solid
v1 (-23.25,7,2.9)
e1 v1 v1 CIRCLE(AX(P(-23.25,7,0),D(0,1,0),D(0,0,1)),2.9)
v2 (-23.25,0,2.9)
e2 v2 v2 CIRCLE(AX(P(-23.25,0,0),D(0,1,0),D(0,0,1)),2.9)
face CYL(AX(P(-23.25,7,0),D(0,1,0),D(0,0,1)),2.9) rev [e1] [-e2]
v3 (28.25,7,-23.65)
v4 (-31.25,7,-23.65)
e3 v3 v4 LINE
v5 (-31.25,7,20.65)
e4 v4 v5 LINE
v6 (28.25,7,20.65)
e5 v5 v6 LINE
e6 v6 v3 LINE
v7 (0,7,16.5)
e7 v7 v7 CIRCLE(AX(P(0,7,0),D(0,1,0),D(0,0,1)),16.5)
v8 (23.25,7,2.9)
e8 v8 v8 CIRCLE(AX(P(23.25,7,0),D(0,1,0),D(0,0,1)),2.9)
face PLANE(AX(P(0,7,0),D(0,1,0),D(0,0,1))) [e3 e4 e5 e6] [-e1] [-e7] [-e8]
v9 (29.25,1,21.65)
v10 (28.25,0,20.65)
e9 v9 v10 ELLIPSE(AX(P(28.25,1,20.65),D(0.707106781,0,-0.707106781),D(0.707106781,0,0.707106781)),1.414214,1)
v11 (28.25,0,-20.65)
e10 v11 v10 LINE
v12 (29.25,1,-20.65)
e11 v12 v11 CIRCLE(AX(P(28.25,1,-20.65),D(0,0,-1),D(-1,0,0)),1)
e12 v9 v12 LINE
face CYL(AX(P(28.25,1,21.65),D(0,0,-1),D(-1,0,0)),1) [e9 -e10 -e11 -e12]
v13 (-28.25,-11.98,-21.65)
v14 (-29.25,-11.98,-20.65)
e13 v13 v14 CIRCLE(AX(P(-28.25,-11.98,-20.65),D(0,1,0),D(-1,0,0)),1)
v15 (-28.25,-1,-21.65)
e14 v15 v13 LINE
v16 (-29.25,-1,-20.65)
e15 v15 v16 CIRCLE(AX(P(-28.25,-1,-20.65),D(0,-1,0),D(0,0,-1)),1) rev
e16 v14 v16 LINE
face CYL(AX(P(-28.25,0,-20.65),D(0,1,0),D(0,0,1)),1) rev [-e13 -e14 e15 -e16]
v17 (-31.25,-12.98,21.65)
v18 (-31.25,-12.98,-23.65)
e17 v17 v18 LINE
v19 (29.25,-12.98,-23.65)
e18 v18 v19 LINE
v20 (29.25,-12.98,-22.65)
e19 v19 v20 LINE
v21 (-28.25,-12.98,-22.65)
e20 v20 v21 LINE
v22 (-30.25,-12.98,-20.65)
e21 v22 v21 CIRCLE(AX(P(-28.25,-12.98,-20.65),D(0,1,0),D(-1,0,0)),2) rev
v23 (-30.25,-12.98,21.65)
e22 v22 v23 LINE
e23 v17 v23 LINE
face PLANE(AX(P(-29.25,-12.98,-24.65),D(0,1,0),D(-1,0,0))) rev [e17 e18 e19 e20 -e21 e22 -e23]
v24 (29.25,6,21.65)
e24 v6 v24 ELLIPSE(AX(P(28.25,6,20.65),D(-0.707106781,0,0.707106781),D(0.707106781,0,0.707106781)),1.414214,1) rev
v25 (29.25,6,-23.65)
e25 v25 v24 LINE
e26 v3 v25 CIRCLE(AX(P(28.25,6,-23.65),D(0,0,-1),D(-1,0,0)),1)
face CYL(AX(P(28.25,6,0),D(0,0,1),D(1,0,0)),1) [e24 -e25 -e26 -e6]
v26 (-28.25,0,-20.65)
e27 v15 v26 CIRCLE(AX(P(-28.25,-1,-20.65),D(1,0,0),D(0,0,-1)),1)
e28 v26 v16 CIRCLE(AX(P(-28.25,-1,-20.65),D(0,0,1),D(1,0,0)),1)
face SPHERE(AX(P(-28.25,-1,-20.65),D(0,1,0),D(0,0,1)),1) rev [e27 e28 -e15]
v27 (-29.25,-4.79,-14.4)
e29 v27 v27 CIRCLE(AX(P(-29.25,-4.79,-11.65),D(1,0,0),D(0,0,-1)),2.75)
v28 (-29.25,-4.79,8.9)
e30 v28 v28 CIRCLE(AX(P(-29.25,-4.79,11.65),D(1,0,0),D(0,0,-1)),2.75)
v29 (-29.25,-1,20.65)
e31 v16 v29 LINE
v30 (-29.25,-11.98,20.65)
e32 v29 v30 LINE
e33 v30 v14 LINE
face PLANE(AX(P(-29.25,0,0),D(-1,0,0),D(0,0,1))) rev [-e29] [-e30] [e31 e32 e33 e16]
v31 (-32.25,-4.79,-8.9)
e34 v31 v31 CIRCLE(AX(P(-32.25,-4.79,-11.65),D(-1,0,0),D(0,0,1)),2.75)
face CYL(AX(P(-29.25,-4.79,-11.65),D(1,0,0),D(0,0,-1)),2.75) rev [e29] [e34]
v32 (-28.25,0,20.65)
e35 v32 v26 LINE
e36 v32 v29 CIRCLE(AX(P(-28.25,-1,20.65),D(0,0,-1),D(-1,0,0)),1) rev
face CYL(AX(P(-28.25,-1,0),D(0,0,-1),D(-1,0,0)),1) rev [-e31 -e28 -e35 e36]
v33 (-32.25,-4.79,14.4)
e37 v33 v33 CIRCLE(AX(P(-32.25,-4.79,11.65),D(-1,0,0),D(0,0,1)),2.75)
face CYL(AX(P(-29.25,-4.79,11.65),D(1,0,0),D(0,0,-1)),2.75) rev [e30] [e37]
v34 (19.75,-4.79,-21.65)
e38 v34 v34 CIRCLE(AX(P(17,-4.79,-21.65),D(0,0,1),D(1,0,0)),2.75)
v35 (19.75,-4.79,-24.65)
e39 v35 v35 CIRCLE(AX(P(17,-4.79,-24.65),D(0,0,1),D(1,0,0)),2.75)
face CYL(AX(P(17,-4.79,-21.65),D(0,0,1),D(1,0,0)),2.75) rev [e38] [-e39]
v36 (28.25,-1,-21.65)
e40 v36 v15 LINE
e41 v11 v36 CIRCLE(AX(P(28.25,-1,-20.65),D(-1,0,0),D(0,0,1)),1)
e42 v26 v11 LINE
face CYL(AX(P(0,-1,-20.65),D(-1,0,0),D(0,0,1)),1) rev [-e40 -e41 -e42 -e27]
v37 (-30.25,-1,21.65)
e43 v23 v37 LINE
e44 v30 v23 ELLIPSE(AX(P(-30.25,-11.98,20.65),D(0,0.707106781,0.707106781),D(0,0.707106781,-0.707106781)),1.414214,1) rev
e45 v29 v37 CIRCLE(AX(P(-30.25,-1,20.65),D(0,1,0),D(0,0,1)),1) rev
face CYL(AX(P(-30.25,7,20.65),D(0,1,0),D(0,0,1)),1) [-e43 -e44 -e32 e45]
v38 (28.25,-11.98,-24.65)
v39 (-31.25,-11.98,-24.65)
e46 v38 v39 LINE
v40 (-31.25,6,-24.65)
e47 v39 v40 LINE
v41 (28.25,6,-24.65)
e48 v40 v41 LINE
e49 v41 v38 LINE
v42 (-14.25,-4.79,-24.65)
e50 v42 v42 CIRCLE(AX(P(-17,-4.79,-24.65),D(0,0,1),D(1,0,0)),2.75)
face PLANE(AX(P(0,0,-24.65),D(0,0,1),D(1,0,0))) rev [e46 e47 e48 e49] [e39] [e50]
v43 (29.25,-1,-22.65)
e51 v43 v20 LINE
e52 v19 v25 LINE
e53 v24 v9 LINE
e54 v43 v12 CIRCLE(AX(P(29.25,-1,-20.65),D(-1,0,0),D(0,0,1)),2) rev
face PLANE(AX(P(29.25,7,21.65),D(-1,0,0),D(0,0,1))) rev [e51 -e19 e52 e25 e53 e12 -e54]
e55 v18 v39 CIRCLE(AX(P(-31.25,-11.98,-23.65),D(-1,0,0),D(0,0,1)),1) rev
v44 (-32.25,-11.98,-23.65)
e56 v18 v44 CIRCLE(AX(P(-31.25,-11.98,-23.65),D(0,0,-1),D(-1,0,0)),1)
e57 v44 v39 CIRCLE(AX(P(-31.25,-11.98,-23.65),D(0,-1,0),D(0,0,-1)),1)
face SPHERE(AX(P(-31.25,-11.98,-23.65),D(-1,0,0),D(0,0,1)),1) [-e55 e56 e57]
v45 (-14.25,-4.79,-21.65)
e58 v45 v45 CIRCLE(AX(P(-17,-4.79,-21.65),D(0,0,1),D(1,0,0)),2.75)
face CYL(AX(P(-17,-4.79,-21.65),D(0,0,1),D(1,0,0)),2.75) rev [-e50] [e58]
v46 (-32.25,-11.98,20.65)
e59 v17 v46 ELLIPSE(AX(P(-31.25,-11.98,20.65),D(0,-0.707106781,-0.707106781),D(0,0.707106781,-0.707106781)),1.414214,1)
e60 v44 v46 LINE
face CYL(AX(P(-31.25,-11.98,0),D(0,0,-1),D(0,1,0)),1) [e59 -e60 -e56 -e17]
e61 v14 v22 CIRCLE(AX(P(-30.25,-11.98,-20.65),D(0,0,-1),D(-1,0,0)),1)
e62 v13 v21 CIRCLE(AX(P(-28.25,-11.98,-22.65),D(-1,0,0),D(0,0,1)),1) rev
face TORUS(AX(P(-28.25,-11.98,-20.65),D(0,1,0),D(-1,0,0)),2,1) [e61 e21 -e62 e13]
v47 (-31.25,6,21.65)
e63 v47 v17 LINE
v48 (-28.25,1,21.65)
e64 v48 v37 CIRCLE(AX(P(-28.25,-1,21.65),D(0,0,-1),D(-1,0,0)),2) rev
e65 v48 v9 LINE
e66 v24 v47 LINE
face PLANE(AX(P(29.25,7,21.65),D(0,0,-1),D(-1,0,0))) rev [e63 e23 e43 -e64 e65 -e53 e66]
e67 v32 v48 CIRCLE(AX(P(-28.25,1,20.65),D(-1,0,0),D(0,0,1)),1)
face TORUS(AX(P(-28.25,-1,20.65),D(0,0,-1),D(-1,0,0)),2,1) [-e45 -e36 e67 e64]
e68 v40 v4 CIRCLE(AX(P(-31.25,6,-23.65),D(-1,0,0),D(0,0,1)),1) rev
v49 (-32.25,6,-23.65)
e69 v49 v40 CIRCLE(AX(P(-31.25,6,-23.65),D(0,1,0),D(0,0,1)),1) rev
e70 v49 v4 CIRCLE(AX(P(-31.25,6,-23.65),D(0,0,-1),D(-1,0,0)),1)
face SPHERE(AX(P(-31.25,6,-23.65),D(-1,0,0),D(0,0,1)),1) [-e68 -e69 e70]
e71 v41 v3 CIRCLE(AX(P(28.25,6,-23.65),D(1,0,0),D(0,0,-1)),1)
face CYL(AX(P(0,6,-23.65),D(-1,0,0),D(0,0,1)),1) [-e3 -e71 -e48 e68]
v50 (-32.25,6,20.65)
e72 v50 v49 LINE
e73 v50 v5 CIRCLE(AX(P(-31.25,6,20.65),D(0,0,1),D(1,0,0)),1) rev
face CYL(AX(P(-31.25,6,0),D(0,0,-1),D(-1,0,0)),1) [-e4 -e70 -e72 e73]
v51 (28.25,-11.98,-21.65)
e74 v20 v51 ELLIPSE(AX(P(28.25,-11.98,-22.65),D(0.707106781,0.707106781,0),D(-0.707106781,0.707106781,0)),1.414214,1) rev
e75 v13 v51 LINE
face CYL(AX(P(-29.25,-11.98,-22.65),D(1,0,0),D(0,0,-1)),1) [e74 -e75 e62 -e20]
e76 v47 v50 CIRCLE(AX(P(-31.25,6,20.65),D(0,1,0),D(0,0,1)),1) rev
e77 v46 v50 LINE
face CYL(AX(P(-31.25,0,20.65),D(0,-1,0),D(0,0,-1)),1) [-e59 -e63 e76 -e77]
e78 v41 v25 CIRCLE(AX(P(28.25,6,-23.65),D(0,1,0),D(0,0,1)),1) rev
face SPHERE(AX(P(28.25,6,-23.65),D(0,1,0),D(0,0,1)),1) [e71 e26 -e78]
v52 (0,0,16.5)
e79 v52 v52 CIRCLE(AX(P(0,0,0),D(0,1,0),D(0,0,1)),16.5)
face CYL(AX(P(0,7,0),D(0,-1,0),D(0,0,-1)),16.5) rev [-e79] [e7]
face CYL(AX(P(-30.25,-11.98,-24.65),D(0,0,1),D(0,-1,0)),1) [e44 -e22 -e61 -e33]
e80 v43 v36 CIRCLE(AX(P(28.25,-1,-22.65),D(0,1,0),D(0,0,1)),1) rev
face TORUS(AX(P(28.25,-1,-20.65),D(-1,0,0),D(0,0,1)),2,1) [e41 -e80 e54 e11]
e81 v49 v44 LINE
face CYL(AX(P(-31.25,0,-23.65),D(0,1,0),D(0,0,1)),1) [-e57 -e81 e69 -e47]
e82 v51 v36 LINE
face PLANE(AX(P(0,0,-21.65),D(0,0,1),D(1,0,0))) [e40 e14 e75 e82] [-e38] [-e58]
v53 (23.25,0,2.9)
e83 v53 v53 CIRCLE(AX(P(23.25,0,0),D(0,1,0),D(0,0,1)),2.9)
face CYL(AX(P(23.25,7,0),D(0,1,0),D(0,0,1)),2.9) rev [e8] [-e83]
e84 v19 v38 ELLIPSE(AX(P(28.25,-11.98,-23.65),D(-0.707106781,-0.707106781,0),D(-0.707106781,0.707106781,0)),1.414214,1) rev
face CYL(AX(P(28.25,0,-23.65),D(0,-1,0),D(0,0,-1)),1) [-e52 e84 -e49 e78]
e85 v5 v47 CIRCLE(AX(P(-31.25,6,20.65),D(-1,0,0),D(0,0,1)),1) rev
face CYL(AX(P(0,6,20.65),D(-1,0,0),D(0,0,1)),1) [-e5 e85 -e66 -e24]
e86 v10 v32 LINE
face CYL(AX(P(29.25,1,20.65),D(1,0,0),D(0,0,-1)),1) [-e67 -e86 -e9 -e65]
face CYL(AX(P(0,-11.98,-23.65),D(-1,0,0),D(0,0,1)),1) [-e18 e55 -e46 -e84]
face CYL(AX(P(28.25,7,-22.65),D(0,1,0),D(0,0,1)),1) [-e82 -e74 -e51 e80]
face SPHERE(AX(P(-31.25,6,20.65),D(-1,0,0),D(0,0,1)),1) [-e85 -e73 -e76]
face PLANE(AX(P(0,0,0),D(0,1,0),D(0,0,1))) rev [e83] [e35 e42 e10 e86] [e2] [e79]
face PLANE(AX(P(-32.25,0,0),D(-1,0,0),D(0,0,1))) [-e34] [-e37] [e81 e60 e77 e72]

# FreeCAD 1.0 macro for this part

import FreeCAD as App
import Part
import Sketcher


def edges_at(feature, points):
    """Names of the edges that pass closest to the given points."""
    edges = feature.Shape.Edges
    near = lambda p: min(range(len(edges)), key=lambda i: edges[i].distToShape(Part.Vertex(*p))[0])
    return sorted({f"Edge{near(p) + 1}" for p in points})

doc = App.newDocument("Part")
body = doc.addObject("PartDesign::Body", "Body")

# Sketch on XZ plane
sketch1 = body.newObject("Sketcher::SketchObject", "Sketch")
sketch1.AttachmentSupport = (doc.getObject("XZ_Plane"), [""])
sketch1.MapMode = "FlatFace"
sketch1.addGeometry(Part.LineSegment(App.Vector(-29.25, -21.65, 0), App.Vector(-29.25, 21.65, 0)), False)
sketch1.addGeometry(Part.LineSegment(App.Vector(-29.25, 21.65, 0), App.Vector(29.25, 21.65, 0)), False)
sketch1.addGeometry(Part.LineSegment(App.Vector(29.25, 21.65, 0), App.Vector(29.25, -21.65, 0)), False)
sketch1.addGeometry(Part.LineSegment(App.Vector(29.25, -21.65, 0), App.Vector(-29.25, -21.65, 0)), False)
sketch1.addGeometry(Part.Circle(App.Vector(0, 0, 0), App.Vector(0, 0, 1), 16.5), False)
sketch1.addConstraint(Sketcher.Constraint("Coincident", 0, 2, 1, 1))
sketch1.addConstraint(Sketcher.Constraint("Coincident", 1, 2, 2, 1))
sketch1.addConstraint(Sketcher.Constraint("Coincident", 2, 2, 3, 1))
sketch1.addConstraint(Sketcher.Constraint("Coincident", 3, 2, 0, 1))
sketch1.addConstraint(Sketcher.Constraint("Vertical", 0))
sketch1.addConstraint(Sketcher.Constraint("Horizontal", 1))
sketch1.addConstraint(Sketcher.Constraint("Vertical", 2))
sketch1.addConstraint(Sketcher.Constraint("Horizontal", 3))
sketch1.addConstraint(Sketcher.Constraint("Coincident", 4, 3, -1, 1))
sketch1.addConstraint(Sketcher.Constraint("Symmetric", 0, 2, 2, 2, -1, 1))
sketch1.addConstraint(Sketcher.Constraint("Diameter", 4, 33.0))
sketch1.addConstraint(Sketcher.Constraint("DistanceX", 1, 1, 1, 2, 58.5))
sketch1.addConstraint(Sketcher.Constraint("DistanceY", 0, 1, 0, 2, 43.3))
pad1 = body.newObject("PartDesign::Pad", "Pad")
pad1.Profile = sketch1
pad1.Length = 7
pad1.Reversed = True

# Sketch on XZ plane
sketch2 = body.newObject("Sketcher::SketchObject", "Sketch001")
sketch2.AttachmentSupport = (doc.getObject("XZ_Plane"), [""])
sketch2.MapMode = "FlatFace"
sketch2.AttachmentOffset = App.Placement(App.Vector(0, 0, -7), App.Rotation())
sketch2.addGeometry(Part.Circle(App.Vector(-23.25, 0, 0), App.Vector(0, 0, 1), 2.9), False)
sketch2.addGeometry(Part.Circle(App.Vector(23.25, 0, 0), App.Vector(0, 0, 1), 2.9), False)
sketch2.addConstraint(Sketcher.Constraint("Equal", 0, 1))
sketch2.addConstraint(Sketcher.Constraint("Symmetric", 0, 3, 1, 3, -1, 1))
sketch2.addConstraint(Sketcher.Constraint("PointOnObject", 0, 3, -1))
sketch2.addConstraint(Sketcher.Constraint("Diameter", 0, 5.8))
sketch2.addConstraint(Sketcher.Constraint("DistanceX", 0, 3, 1, 3, 46.5))
doc.recompute()
hole = body.newObject("PartDesign::Hole", "Hole")
hole.Profile = sketch2
hole.ThreadType = "None"
hole.Diameter = 5.8
hole.DepthType = "Dimension"
hole.Depth = 7
hole.DrillPoint = "Flat"
hole.Reversed = True

# Sketch on XY plane
sketch3 = body.newObject("Sketcher::SketchObject", "Sketch002")
sketch3.AttachmentSupport = (doc.getObject("XY_Plane"), [""])
sketch3.MapMode = "FlatFace"
sketch3.AttachmentOffset = App.Placement(App.Vector(0, 0, -21.65), App.Rotation())
sketch3.addGeometry(Part.LineSegment(App.Vector(29.25, 7, 0), App.Vector(29.25, -12.98, 0)), False)
sketch3.addGeometry(Part.LineSegment(App.Vector(29.25, -12.98, 0), App.Vector(-29.25, -12.98, 0)), False)
sketch3.addGeometry(Part.LineSegment(App.Vector(-29.25, -12.98, 0), App.Vector(-29.25, 7, 0)), False)
sketch3.addGeometry(Part.LineSegment(App.Vector(-29.25, 7, 0), App.Vector(29.25, 7, 0)), False)
sketch3.addConstraint(Sketcher.Constraint("Coincident", 0, 2, 1, 1))
sketch3.addConstraint(Sketcher.Constraint("Coincident", 1, 2, 2, 1))
sketch3.addConstraint(Sketcher.Constraint("Coincident", 2, 2, 3, 1))
sketch3.addConstraint(Sketcher.Constraint("Coincident", 3, 2, 0, 1))
sketch3.addConstraint(Sketcher.Constraint("Vertical", 0))
sketch3.addConstraint(Sketcher.Constraint("Horizontal", 1))
sketch3.addConstraint(Sketcher.Constraint("Vertical", 2))
sketch3.addConstraint(Sketcher.Constraint("Horizontal", 3))
sketch3.addConstraint(Sketcher.Constraint("DistanceX", 1, 2, 1, 1, 58.5))
sketch3.addConstraint(Sketcher.Constraint("DistanceY", -1, 1, 2, 2, 7.0))
sketch3.addConstraint(Sketcher.Constraint("DistanceY", 0, 2, 0, 1, 19.98))
sketch3.addConstraint(Sketcher.Constraint("DistanceX", -1, 1, 0, 2, 29.25))
pad2 = body.newObject("PartDesign::Pad", "Pad001")
pad2.Profile = sketch3
pad2.Length = 3
pad2.Reversed = True

# Sketch on YZ plane
sketch4 = body.newObject("Sketcher::SketchObject", "Sketch003")
sketch4.AttachmentSupport = (doc.getObject("YZ_Plane"), [""])
sketch4.MapMode = "FlatFace"
sketch4.AttachmentOffset = App.Placement(App.Vector(0, 0, -29.25), App.Rotation())
sketch4.addGeometry(Part.LineSegment(App.Vector(7, -24.65, 0), App.Vector(-12.98, -24.65, 0)), False)
sketch4.addGeometry(Part.LineSegment(App.Vector(-12.98, -24.65, 0), App.Vector(-12.98, 21.65, 0)), False)
sketch4.addGeometry(Part.LineSegment(App.Vector(-12.98, 21.65, 0), App.Vector(7, 21.65, 0)), False)
sketch4.addGeometry(Part.LineSegment(App.Vector(7, 21.65, 0), App.Vector(7, -24.65, 0)), False)
sketch4.addConstraint(Sketcher.Constraint("Coincident", 0, 2, 1, 1))
sketch4.addConstraint(Sketcher.Constraint("Coincident", 1, 2, 2, 1))
sketch4.addConstraint(Sketcher.Constraint("Coincident", 2, 2, 3, 1))
sketch4.addConstraint(Sketcher.Constraint("Coincident", 3, 2, 0, 1))
sketch4.addConstraint(Sketcher.Constraint("Horizontal", 0))
sketch4.addConstraint(Sketcher.Constraint("Vertical", 1))
sketch4.addConstraint(Sketcher.Constraint("Horizontal", 2))
sketch4.addConstraint(Sketcher.Constraint("Vertical", 3))
sketch4.addConstraint(Sketcher.Constraint("DistanceY", 1, 1, 1, 2, 46.3))
sketch4.addConstraint(Sketcher.Constraint("DistanceX", -1, 1, 2, 2, 7.0))
sketch4.addConstraint(Sketcher.Constraint("DistanceX", 0, 2, 0, 1, 19.98))
sketch4.addConstraint(Sketcher.Constraint("DistanceY", 0, 2, -1, 1, 24.65))
pad3 = body.newObject("PartDesign::Pad", "Pad002")
pad3.Profile = sketch4
pad3.Length = 3
pad3.Reversed = True

# Sketch on XY plane
sketch5 = body.newObject("Sketcher::SketchObject", "Sketch004")
sketch5.AttachmentSupport = (doc.getObject("XY_Plane"), [""])
sketch5.MapMode = "FlatFace"
sketch5.AttachmentOffset = App.Placement(App.Vector(0, 0, -21.65), App.Rotation())
sketch5.addGeometry(Part.Circle(App.Vector(-17, -4.79, 0), App.Vector(0, 0, 1), 2.75), False)
sketch5.addGeometry(Part.Circle(App.Vector(17, -4.79, 0), App.Vector(0, 0, 1), 2.75), False)
sketch5.addConstraint(Sketcher.Constraint("Equal", 0, 1))
sketch5.addConstraint(Sketcher.Constraint("Symmetric", 0, 3, 1, 3, -2))
sketch5.addConstraint(Sketcher.Constraint("Diameter", 0, 5.5))
sketch5.addConstraint(Sketcher.Constraint("DistanceX", 0, 3, -1, 1, 17.0))
sketch5.addConstraint(Sketcher.Constraint("DistanceY", 0, 3, -1, 1, 4.79))
doc.recompute()
hole2 = body.newObject("PartDesign::Hole", "Hole001")
hole2.Profile = sketch5
hole2.ThreadType = "None"
hole2.Diameter = 5.5
hole2.DepthType = "Dimension"
hole2.Depth = 3
hole2.DrillPoint = "Flat"

# Sketch on YZ plane
sketch6 = body.newObject("Sketcher::SketchObject", "Sketch005")
sketch6.AttachmentSupport = (doc.getObject("YZ_Plane"), [""])
sketch6.MapMode = "FlatFace"
sketch6.AttachmentOffset = App.Placement(App.Vector(0, 0, -29.25), App.Rotation())
sketch6.addGeometry(Part.Circle(App.Vector(-4.79, 11.65, 0), App.Vector(0, 0, 1), 2.75), False)
sketch6.addGeometry(Part.Circle(App.Vector(-4.79, -11.65, 0), App.Vector(0, 0, 1), 2.75), False)
sketch6.addConstraint(Sketcher.Constraint("Equal", 0, 1))
sketch6.addConstraint(Sketcher.Constraint("Symmetric", 0, 3, 1, 3, -1))
sketch6.addConstraint(Sketcher.Constraint("Diameter", 0, 5.5))
sketch6.addConstraint(Sketcher.Constraint("DistanceY", 1, 3, 0, 3, 23.3))
sketch6.addConstraint(Sketcher.Constraint("DistanceX", 0, 3, -1, 1, 4.79))
doc.recompute()
hole3 = body.newObject("PartDesign::Hole", "Hole002")
hole3.Profile = sketch6
hole3.ThreadType = "None"
hole3.Diameter = 5.5
hole3.DepthType = "Dimension"
hole3.Depth = 3
hole3.DrillPoint = "Flat"
doc.recompute()

fillet = body.newObject("PartDesign::Fillet", "Fillet")
fillet.Base = (hole3, edges_at(hole3, [
    (-29.25, -6.49, -21.65),
    (29.25, -6.49, -21.65),
    (0, -12.98, -21.65),
    (-29.25, -12.98, 0),
    (-29.25, -6.49, 21.65),
    (0, 0, -21.65),
    (29.25, 0, 0),
    (0, 0, 21.65),
    (-29.25, 0, 0),
]))
fillet.Radius = 1
doc.recompute()

fillet2 = body.newObject("PartDesign::Fillet", "Fillet001")
fillet2.Base = (fillet, edges_at(fillet, [
    (29.25, 7, -1.5),
    (-1.5, 7, -24.65),
    (29.25, -2.99, -24.65),
    (-1.5, -12.98, -24.65),
    (-32.25, -2.99, -24.65),
    (-32.25, -12.98, -1.5),
    (-32.25, -2.99, 21.65),
    (-32.25, 7, -1.5),
    (-1.5, 7, 21.65),
]))
fillet2.Radius = 1

doc.recompute()
